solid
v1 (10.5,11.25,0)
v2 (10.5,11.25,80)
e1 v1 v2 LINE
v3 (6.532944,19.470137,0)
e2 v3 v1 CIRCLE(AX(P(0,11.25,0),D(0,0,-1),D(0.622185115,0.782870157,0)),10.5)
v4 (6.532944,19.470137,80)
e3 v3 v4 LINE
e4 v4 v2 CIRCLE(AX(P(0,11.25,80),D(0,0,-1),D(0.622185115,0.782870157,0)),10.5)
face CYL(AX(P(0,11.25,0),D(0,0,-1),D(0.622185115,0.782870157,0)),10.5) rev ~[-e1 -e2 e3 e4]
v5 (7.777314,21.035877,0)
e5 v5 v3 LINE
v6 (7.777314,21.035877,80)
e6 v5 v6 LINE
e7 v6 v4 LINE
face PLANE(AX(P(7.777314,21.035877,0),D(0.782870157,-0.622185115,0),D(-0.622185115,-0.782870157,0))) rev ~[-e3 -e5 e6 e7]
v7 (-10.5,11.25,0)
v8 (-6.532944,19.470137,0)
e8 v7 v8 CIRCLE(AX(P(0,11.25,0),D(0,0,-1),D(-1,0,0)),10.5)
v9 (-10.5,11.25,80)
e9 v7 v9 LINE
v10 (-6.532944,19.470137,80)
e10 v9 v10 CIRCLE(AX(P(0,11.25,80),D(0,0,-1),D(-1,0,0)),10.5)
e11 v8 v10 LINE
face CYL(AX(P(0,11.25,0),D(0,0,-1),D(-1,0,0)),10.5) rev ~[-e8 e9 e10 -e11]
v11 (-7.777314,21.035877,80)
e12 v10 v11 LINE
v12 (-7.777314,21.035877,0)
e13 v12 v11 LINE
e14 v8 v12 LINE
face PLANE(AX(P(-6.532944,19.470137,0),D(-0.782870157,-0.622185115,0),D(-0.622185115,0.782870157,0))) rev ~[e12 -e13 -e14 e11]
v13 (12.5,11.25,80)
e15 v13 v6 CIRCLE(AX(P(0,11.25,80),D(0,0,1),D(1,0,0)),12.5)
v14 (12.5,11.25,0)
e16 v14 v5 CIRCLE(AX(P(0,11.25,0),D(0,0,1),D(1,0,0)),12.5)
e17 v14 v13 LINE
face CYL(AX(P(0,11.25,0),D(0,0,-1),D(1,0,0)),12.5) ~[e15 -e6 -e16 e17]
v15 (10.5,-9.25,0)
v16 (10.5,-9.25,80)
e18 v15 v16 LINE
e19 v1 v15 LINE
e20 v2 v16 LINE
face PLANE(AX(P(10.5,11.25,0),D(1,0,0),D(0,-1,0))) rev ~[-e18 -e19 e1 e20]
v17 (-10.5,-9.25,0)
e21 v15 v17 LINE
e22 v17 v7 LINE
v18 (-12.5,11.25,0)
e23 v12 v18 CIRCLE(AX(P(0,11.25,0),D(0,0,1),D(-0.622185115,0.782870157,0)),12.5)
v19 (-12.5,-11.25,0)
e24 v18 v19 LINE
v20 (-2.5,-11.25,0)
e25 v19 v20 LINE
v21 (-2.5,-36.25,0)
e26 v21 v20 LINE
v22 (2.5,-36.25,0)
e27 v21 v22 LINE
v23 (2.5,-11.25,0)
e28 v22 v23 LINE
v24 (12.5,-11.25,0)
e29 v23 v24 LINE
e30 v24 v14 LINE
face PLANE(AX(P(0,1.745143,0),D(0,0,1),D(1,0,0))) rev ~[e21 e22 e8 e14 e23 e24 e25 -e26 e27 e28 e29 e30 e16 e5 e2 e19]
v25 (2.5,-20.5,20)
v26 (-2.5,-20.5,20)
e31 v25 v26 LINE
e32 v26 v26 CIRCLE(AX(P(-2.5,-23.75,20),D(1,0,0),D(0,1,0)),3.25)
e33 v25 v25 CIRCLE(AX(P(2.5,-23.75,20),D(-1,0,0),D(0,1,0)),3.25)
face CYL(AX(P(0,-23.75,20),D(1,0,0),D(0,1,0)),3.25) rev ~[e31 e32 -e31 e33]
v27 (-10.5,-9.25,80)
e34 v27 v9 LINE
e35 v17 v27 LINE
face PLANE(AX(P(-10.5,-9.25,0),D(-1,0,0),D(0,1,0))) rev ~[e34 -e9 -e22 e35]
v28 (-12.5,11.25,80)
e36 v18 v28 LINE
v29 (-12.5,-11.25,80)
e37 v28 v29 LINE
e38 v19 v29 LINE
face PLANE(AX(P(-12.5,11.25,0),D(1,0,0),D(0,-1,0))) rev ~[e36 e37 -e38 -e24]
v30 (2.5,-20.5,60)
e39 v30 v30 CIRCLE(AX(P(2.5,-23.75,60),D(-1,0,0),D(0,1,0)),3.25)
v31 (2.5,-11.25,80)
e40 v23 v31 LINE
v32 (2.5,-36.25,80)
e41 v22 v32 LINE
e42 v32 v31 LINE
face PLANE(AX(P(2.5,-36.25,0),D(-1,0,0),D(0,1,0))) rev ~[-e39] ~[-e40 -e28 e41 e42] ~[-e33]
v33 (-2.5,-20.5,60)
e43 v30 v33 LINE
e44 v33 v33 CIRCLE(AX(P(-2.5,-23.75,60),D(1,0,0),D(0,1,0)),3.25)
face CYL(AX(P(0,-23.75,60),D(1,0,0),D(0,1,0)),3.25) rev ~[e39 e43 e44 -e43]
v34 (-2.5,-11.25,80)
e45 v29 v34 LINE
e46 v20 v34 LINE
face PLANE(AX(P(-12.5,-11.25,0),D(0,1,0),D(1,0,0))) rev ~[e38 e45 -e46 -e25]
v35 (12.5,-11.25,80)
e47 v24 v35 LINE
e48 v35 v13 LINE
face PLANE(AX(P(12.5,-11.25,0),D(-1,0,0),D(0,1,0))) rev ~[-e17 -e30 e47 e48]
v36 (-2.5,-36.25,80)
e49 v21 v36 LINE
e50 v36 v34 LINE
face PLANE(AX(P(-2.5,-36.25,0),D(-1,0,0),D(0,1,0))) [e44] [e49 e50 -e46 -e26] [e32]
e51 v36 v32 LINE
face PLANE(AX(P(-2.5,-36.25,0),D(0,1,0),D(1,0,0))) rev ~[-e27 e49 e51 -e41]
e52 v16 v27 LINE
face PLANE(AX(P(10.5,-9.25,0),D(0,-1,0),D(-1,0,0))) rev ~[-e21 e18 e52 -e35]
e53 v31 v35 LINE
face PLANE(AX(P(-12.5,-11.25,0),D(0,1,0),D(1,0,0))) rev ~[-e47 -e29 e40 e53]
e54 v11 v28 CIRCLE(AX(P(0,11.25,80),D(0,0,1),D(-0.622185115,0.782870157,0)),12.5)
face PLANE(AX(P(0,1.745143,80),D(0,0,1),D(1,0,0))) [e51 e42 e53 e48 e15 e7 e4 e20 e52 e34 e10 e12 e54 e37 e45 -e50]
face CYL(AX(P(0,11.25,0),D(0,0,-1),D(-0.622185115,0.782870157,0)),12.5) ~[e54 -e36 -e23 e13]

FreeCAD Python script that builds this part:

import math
import FreeCAD as App
import Part
import Sketcher
from FreeCAD import Vector


def add_polygon(sketch, points):
    """Adds a closed chain of lines whose ends are joined by coincident constraints."""
    first, n = sketch.GeometryCount, len(points)
    for a, b in zip(points, points[1:] + points[:1]):
        sketch.addGeometry(Part.LineSegment(App.Vector(*a, 0), App.Vector(*b, 0)), False)
    for i in range(n):
        sketch.addConstraint(Sketcher.Constraint("Coincident", first + i, 2, first + (i + 1) % n, 1))

doc = App.newDocument("Part")
params = doc.addObject("Spreadsheet::Sheet", "Params")
for row, (alias, value) in enumerate([
    ("sketch1_radius", "12.5 mm"),
    ("sketch1_radius2", "10.5 mm"),
    ("sketch1_height", "22.5 mm"),
    ("sketch1_height2", "20.5 mm"),
    ("pad1_length", "80 mm"),
    ("sketch2_width", "5 mm"),
    ("sketch2_height", "25 mm"),
    ("pad2_length", "80 mm"),
    ("sketch3_diameter", "6.5 mm"),
], start=1):
    params.set(f"A{row}", alias)
    params.set(f"B{row}", "=" + value)
    params.setAlias(f"B{row}", alias)

body = doc.addObject("PartDesign::Body", "Body")

sketch1 = doc.addObject("Sketcher::SketchObject", "Sketch")
body.addObject(sketch1)
sketch1.AttachmentSupport = (doc.XY_Plane, [""])
sketch1.MapMode = "FlatFace"
sketch1.addGeometry(Part.LineSegment(Vector(-12.5, -11.2, 0), Vector(12.5, -11.2, 0)), False)
sketch1.addGeometry(Part.LineSegment(Vector(12.5, -11.2, 0), Vector(12.5, 11.2, 0)), False)
sketch1.addGeometry(Part.ArcOfCircle(Part.Circle(Vector(0, 11.2, 0), Vector(0, 0, 1), 12.5), math.radians(0), math.radians(52)), False)
sketch1.addGeometry(Part.LineSegment(Vector(7.8, 21, 0), Vector(6.5, 19.5, 0)), False)
sketch1.addGeometry(Part.ArcOfCircle(Part.Circle(Vector(0, 11.2, 0), Vector(0, 0, 1), 10.5), math.radians(0), math.radians(52)), False)
sketch1.addGeometry(Part.LineSegment(Vector(10.5, 11.2, 0), Vector(10.5, -9.2, 0)), False)
sketch1.addGeometry(Part.LineSegment(Vector(10.5, -9.2, 0), Vector(-10.5, -9.2, 0)), False)
sketch1.addGeometry(Part.LineSegment(Vector(-10.5, -9.2, 0), Vector(-10.5, 11.2, 0)), False)
sketch1.addGeometry(Part.ArcOfCircle(Part.Circle(Vector(0, 11.2, 0), Vector(0, 0, 1), 10.5), math.radians(128), math.radians(180)), False)
sketch1.addGeometry(Part.LineSegment(Vector(-6.5, 19.5, 0), Vector(-7.8, 21, 0)), False)
sketch1.addGeometry(Part.ArcOfCircle(Part.Circle(Vector(0, 11.2, 0), Vector(0, 0, 1), 12.5), math.radians(128), math.radians(180)), False)
sketch1.addGeometry(Part.LineSegment(Vector(-12.5, 11.2, 0), Vector(-12.5, -11.2, 0)), False)
sketch1.addConstraint(Sketcher.Constraint("Coincident", 0, 2, 1, 1))
sketch1.addConstraint(Sketcher.Constraint("Tangent", 1, 2, 2, 1))
sketch1.addConstraint(Sketcher.Constraint("Coincident", 2, 2, 3, 1))
sketch1.addConstraint(Sketcher.Constraint("Coincident", 3, 2, 4, 2))
sketch1.addConstraint(Sketcher.Constraint("Tangent", 4, 1, 5, 1))
sketch1.addConstraint(Sketcher.Constraint("Coincident", 5, 2, 6, 1))
sketch1.addConstraint(Sketcher.Constraint("Coincident", 6, 2, 7, 1))
sketch1.addConstraint(Sketcher.Constraint("Tangent", 7, 2, 8, 2))
sketch1.addConstraint(Sketcher.Constraint("Coincident", 8, 1, 9, 1))
sketch1.addConstraint(Sketcher.Constraint("Coincident", 9, 2, 10, 1))
sketch1.addConstraint(Sketcher.Constraint("Tangent", 10, 2, 11, 1))
sketch1.addConstraint(Sketcher.Constraint("Coincident", 11, 2, 0, 1))
sketch1.addConstraint(Sketcher.Constraint("Horizontal", 0))
sketch1.addConstraint(Sketcher.Constraint("Vertical", 1))
sketch1.addConstraint(Sketcher.Constraint("Vertical", 5))
sketch1.addConstraint(Sketcher.Constraint("Horizontal", 6))
sketch1.addConstraint(Sketcher.Constraint("Vertical", 7))
sketch1.addConstraint(Sketcher.Constraint("Vertical", 11))
sketch1.addConstraint(Sketcher.Constraint("Coincident", 4, 3, 2, 3))
sketch1.addConstraint(Sketcher.Constraint("Coincident", 8, 3, 2, 3))
sketch1.addConstraint(Sketcher.Constraint("Coincident", 10, 3, 2, 3))
sketch1.addConstraint(Sketcher.Constraint("Equal", 4, 8))
sketch1.addConstraint(Sketcher.Constraint("Equal", 2, 10))
sketch1.addConstraint(Sketcher.Constraint("Symmetric", 0, 2, 10, 2, -1, 1))
sketch1.addConstraint(Sketcher.Constraint("Horizontal", 3, 2, 8, 1))
sketch1.addConstraint(Sketcher.Constraint("Horizontal", 2, 2, 9, 2))
sketch1.addConstraint(Sketcher.Constraint("Radius", 2, 12.5))
sketch1.addConstraint(Sketcher.Constraint("Radius", 4, 10.5))
sketch1.addConstraint(Sketcher.Constraint("DistanceY", 1, 1, 1, 2, 22.5))
sketch1.addConstraint(Sketcher.Constraint("DistanceY", 5, 2, 5, 1, 20.5))
sketch1.addConstraint(Sketcher.Constraint("DistanceX", 3, 2, 2, 2, 1.24437))
sketch1.addConstraint(Sketcher.Constraint("DistanceX", -1, 1, 2, 2, 7.777314))
sketch1.setExpression("Constraints[26]", "Params.sketch1_radius")
sketch1.setExpression("Constraints[27]", "Params.sketch1_radius2")
sketch1.setExpression("Constraints[28]", "Params.sketch1_height")
sketch1.setExpression("Constraints[29]", "Params.sketch1_height2")
pad1 = doc.addObject("PartDesign::Pad", "Pad")
body.addObject(pad1)
pad1.Profile = sketch1
pad1.setExpression("Length", "Params.pad1_length")

sketch2 = doc.addObject("Sketcher::SketchObject", "Sketch001")
body.addObject(sketch2)
sketch2.AttachmentSupport = (doc.XY_Plane, [""])
sketch2.MapMode = "FlatFace"
add_polygon(sketch2, [(-2, -11), (-2, -36), (2, -36), (2, -11)])
sketch2.addConstraint(Sketcher.Constraint("Vertical", 0))
sketch2.addConstraint(Sketcher.Constraint("Horizontal", 1))
sketch2.addConstraint(Sketcher.Constraint("Vertical", 2))
sketch2.addConstraint(Sketcher.Constraint("Horizontal", 3))
sketch2.addConstraint(Sketcher.Constraint("DistanceX", 1, 1, 1, 2, 5.0))
sketch2.addConstraint(Sketcher.Constraint("DistanceY", 0, 2, 0, 1, 25.0))
sketch2.addConstraint(Sketcher.Constraint("DistanceX", 0, 2, -1, 1, 2.5))
sketch2.addConstraint(Sketcher.Constraint("DistanceY", 0, 2, -1, 1, 36.25))
sketch2.setExpression("Constraints[8]", "Params.sketch2_width")
sketch2.setExpression("Constraints[9]", "Params.sketch2_height")
pad2 = doc.addObject("PartDesign::Pad", "Pad001")
body.addObject(pad2)
pad2.Profile = sketch2
pad2.setExpression("Length", "Params.pad2_length")

sketch3 = doc.addObject("Sketcher::SketchObject", "Sketch002")
body.addObject(sketch3)
sketch3.AttachmentSupport = (doc.YZ_Plane, [""])
sketch3.MapMode = "FlatFace"
sketch3.addGeometry(Part.Circle(Vector(-23.8, 20, 0), Vector(0, 0, 1), 3.2), False)
sketch3.addGeometry(Part.Circle(Vector(-23.8, 60, 0), Vector(0, 0, 1), 3.2), False)
sketch3.addConstraint(Sketcher.Constraint("Equal", 0, 1))
sketch3.addConstraint(Sketcher.Constraint("Vertical", 0, 3, 1, 3))
sketch3.addConstraint(Sketcher.Constraint("Diameter", 0, 6.5))
sketch3.addConstraint(Sketcher.Constraint("DistanceY", -1, 1, 0, 3, 20.0))
sketch3.addConstraint(Sketcher.Constraint("DistanceY", -1, 1, 1, 3, 60.0))
sketch3.addConstraint(Sketcher.Constraint("DistanceX", 0, 3, -1, 1, 23.75))
sketch3.setExpression("Constraints[2]", "Params.sketch3_diameter")
pocket1 = doc.addObject("PartDesign::Pocket", "Pocket")
body.addObject(pocket1)
pocket1.Profile = sketch3
pocket1.Type = "ThroughAll"
pocket1.Midplane = True

doc.recompute()
